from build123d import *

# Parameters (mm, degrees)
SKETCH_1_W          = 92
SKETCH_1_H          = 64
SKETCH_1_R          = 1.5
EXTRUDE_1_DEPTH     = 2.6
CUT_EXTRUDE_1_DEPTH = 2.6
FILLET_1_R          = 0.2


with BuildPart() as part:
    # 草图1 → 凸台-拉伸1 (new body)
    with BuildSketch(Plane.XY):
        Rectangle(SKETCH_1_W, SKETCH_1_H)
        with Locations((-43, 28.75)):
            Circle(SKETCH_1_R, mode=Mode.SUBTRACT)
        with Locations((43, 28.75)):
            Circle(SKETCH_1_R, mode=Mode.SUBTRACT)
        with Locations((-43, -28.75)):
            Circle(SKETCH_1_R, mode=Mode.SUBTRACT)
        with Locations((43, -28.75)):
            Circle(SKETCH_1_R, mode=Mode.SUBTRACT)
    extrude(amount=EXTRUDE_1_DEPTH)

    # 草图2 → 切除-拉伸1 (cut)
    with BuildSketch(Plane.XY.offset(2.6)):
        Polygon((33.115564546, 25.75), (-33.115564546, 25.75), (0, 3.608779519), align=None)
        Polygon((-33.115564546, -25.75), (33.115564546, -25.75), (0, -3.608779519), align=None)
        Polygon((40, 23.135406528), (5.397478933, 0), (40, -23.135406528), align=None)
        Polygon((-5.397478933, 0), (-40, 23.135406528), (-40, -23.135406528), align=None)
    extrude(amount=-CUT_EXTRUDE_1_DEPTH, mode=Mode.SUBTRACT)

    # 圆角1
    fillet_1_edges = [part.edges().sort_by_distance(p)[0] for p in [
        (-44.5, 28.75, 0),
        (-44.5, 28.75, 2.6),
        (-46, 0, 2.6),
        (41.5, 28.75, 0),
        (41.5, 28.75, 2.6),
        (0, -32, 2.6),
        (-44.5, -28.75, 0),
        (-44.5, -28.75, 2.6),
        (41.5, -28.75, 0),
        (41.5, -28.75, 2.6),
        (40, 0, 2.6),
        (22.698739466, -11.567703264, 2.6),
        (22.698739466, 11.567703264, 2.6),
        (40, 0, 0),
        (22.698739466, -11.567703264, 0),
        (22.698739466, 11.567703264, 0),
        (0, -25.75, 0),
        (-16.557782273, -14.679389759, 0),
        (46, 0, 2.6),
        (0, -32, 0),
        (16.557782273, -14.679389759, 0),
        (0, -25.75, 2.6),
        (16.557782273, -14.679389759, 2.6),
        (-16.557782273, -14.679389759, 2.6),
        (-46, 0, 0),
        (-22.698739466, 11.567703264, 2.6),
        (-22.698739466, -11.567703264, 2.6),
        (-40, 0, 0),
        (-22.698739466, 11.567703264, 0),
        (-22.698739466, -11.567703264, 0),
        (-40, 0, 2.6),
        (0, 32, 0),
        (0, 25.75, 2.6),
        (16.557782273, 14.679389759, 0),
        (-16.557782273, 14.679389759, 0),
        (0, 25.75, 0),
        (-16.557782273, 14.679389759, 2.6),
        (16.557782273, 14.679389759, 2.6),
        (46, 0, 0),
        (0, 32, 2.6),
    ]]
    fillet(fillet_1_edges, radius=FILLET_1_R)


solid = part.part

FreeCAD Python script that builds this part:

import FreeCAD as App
import Part
import Sketcher

V = App.Vector


def edges_at(feature, points):
    """Names of the edges that pass closest to the given points."""
    edges = feature.Shape.Edges
    near = lambda p: min(range(len(edges)), key=lambda i: edges[i].distToShape(Part.Vertex(*p))[0])
    return sorted({f"Edge{near(p) + 1}" for p in points})

doc = App.newDocument("Part")
params = doc.addObject("Spreadsheet::Sheet", "Params")
for row, (alias, value) in enumerate([
    ("sketch1_diameter", "3 mm"),
    ("sketch1_width", "92 mm"),
    ("sketch1_height", "64 mm"),
    ("pad1_length", "2.6 mm"),
    ("pocket1_length", "2.6 mm"),
    ("fillet_radius", "0.2 mm"),
], start=1):
    params.set(f"A{row}", alias)
    params.set(f"B{row}", "=" + value)
    params.setAlias(f"B{row}", alias)

body = doc.addObject("PartDesign::Body", "Body")

sketch1 = body.newObject("Sketcher::SketchObject", "Sketch")
sketch1.AttachmentSupport = (doc.getObject("XY_Plane"), [""])
sketch1.MapMode = "FlatFace"
sketch1.addGeometry(Part.LineSegment(V(-46, 32, 0), V(-46, -32, 0)), False)
sketch1.addGeometry(Part.LineSegment(V(-46, -32, 0), V(46, -32, 0)), False)
sketch1.addGeometry(Part.LineSegment(V(46, -32, 0), V(46, 32, 0)), False)
sketch1.addGeometry(Part.LineSegment(V(46, 32, 0), V(-46, 32, 0)), False)
sketch1.addGeometry(Part.Circle(V(-43, -28.8, 0), V(0, 0, 1), 1.5), False)
sketch1.addGeometry(Part.Circle(V(43, -28.8, 0), V(0, 0, 1), 1.5), False)
sketch1.addGeometry(Part.Circle(V(-43, 28.8, 0), V(0, 0, 1), 1.5), False)
sketch1.addGeometry(Part.Circle(V(43, 28.8, 0), V(0, 0, 1), 1.5), False)
sketch1.addConstraint(Sketcher.Constraint("Coincident", 0, 2, 1, 1))
sketch1.addConstraint(Sketcher.Constraint("Coincident", 1, 2, 2, 1))
sketch1.addConstraint(Sketcher.Constraint("Coincident", 2, 2, 3, 1))
sketch1.addConstraint(Sketcher.Constraint("Coincident", 3, 2, 0, 1))
sketch1.addConstraint(Sketcher.Constraint("Vertical", 0))
sketch1.addConstraint(Sketcher.Constraint("Horizontal", 1))
sketch1.addConstraint(Sketcher.Constraint("Vertical", 2))
sketch1.addConstraint(Sketcher.Constraint("Horizontal", 3))
sketch1.addConstraint(Sketcher.Constraint("Equal", 4, 5))
sketch1.addConstraint(Sketcher.Constraint("Equal", 5, 6))
sketch1.addConstraint(Sketcher.Constraint("Equal", 6, 7))
sketch1.addConstraint(Sketcher.Constraint("Symmetric", 5, 3, 6, 3, -1, 1))
sketch1.addConstraint(Sketcher.Constraint("Symmetric", 4, 3, 7, 3, -1, 1))
sketch1.addConstraint(Sketcher.Constraint("Symmetric", 0, 2, 2, 2, -1, 1))
sketch1.addConstraint(Sketcher.Constraint("Symmetric", 4, 3, 5, 3, -2))
sketch1.addConstraint(Sketcher.Constraint("Diameter", 4, 3.0))
sketch1.addConstraint(Sketcher.Constraint("DistanceX", 1, 1, 1, 2, 92.0))
sketch1.addConstraint(Sketcher.Constraint("DistanceY", 0, 2, 0, 1, 64.0))
sketch1.addConstraint(Sketcher.Constraint("DistanceX", 4, 3, -1, 1, 43.0))
sketch1.addConstraint(Sketcher.Constraint("DistanceY", 4, 3, 6, 3, 57.5))
sketch1.setExpression("Constraints[15]", "Params.sketch1_diameter")
sketch1.setExpression("Constraints[16]", "Params.sketch1_width")
sketch1.setExpression("Constraints[17]", "Params.sketch1_height")
pad1 = body.newObject("PartDesign::Pad", "Pad")
pad1.Profile = sketch1
pad1.setExpression("Length", "Params.pad1_length")

sketch2 = body.newObject("Sketcher::SketchObject", "Sketch001")
sketch2.AttachmentSupport = (doc.getObject("XY_Plane"), [""])
sketch2.MapMode = "FlatFace"
sketch2.AttachmentOffset = App.Placement(V(0, 0, 2.6), App.Rotation())
sketch2.addGeometry(Part.LineSegment(V(33, 26, 0), V(-33, 26, 0)), False)
sketch2.addGeometry(Part.LineSegment(V(-33, 26, 0), V(0, 4, 0)), False)
sketch2.addGeometry(Part.LineSegment(V(0, 4, 0), V(33, 26, 0)), False)
sketch2.addGeometry(Part.LineSegment(V(-33, -26, 0), V(33, -26, 0)), False)
sketch2.addGeometry(Part.LineSegment(V(33, -26, 0), V(0, -4, 0)), False)
sketch2.addGeometry(Part.LineSegment(V(0, -4, 0), V(-33, -26, 0)), False)
sketch2.addGeometry(Part.LineSegment(V(40, 23, 0), V(5, 0, 0)), False)
sketch2.addGeometry(Part.LineSegment(V(5, 0, 0), V(40, -23, 0)), False)
sketch2.addGeometry(Part.LineSegment(V(40, -23, 0), V(40, 23, 0)), False)
sketch2.addGeometry(Part.LineSegment(V(-5, 0, 0), V(-40, 23, 0)), False)
sketch2.addGeometry(Part.LineSegment(V(-40, 23, 0), V(-40, -23, 0)), False)
sketch2.addGeometry(Part.LineSegment(V(-40, -23, 0), V(-5, 0, 0)), False)
sketch2.addConstraint(Sketcher.Constraint("Coincident", 0, 2, 1, 1))
sketch2.addConstraint(Sketcher.Constraint("Coincident", 1, 2, 2, 1))
sketch2.addConstraint(Sketcher.Constraint("Coincident", 2, 2, 0, 1))
sketch2.addConstraint(Sketcher.Constraint("Coincident", 3, 2, 4, 1))
sketch2.addConstraint(Sketcher.Constraint("Coincident", 4, 2, 5, 1))
sketch2.addConstraint(Sketcher.Constraint("Coincident", 5, 2, 3, 1))
sketch2.addConstraint(Sketcher.Constraint("Coincident", 6, 2, 7, 1))
sketch2.addConstraint(Sketcher.Constraint("Coincident", 7, 2, 8, 1))
sketch2.addConstraint(Sketcher.Constraint("Coincident", 8, 2, 6, 1))
sketch2.addConstraint(Sketcher.Constraint("Coincident", 9, 2, 10, 1))
sketch2.addConstraint(Sketcher.Constraint("Coincident", 10, 2, 11, 1))
sketch2.addConstraint(Sketcher.Constraint("Coincident", 11, 2, 9, 1))
sketch2.addConstraint(Sketcher.Constraint("Horizontal", 0))
sketch2.addConstraint(Sketcher.Constraint("Horizontal", 3))
sketch2.addConstraint(Sketcher.Constraint("Vertical", 8))
sketch2.addConstraint(Sketcher.Constraint("Vertical", 10))
sketch2.addConstraint(Sketcher.Constraint("Symmetric", 0, 2, 3, 2, -1, 1))
sketch2.addConstraint(Sketcher.Constraint("Symmetric", 1, 2, 4, 2, -1, 1))
sketch2.addConstraint(Sketcher.Constraint("Symmetric", 7, 2, 9, 2, -1, 1))
sketch2.addConstraint(Sketcher.Constraint("Symmetric", 6, 2, 11, 2, -1, 1))
sketch2.addConstraint(Sketcher.Constraint("PointOnObject", 1, 2, -2))
sketch2.addConstraint(Sketcher.Constraint("PointOnObject", 6, 2, -1))
sketch2.addConstraint(Sketcher.Constraint("Parallel", 2, 5))
sketch2.addConstraint(Sketcher.Constraint("Parallel", 5, 6))
sketch2.addConstraint(Sketcher.Constraint("Parallel", 4, 7))
sketch2.addConstraint(Sketcher.Constraint("Parallel", 6, 11))
sketch2.addConstraint(Sketcher.Constraint("Horizontal", 8, 2, 9, 2))
sketch2.addConstraint(Sketcher.Constraint("DistanceX", -1, 1, 7, 2, 40.0))
sketch2.addConstraint(Sketcher.Constraint("DistanceY", 3, 2, 2, 2, 51.5))
sketch2.addConstraint(Sketcher.Constraint("DistanceX", 0, 2, 0, 1, 66.231129))
sketch2.addConstraint(Sketcher.Constraint("Distance", 1, 39.83559))
sketch2.addConstraint(Sketcher.Constraint("Distance", 6, 41.62429))
pocket1 = body.newObject("PartDesign::Pocket", "Pocket")
pocket1.Profile = sketch2
pocket1.setExpression("Length", "Params.pocket1_length")
doc.recompute()

fillet = body.newObject("PartDesign::Fillet", "Fillet")
fillet.Base = (pocket1, edges_at(pocket1, [
    (-44.5, 28.75, 0),
    (-44.5, 28.75, 2.6),
    (-46, 0, 2.6),
    (41.5, 28.75, 0),
    (41.5, 28.75, 2.6),
    (0, -32, 2.6),
    (-44.5, -28.75, 0),
    (-44.5, -28.75, 2.6),
    (41.5, -28.75, 0),
    (41.5, -28.75, 2.6),
    (40, 0, 2.6),
    (22.699, -11.568, 2.6),
    (22.699, 11.568, 2.6),
    (40, 0, 0),
    (22.699, -11.568, 0),
    (22.699, 11.568, 0),
    (0, -25.75, 0),
    (-16.558, -14.679, 0),
    (46, 0, 2.6),
    (0, -32, 0),
    (16.558, -14.679, 0),
    (0, -25.75, 2.6),
    (16.558, -14.679, 2.6),
    (-16.558, -14.679, 2.6),
    (-46, 0, 0),
    (-22.699, 11.568, 2.6),
    (-22.699, -11.568, 2.6),
    (-40, 0, 0),
    (-22.699, 11.568, 0),
    (-22.699, -11.568, 0),
    (-40, 0, 2.6),
    (0, 32, 0),
    (0, 25.75, 2.6),
    (16.558, 14.679, 0),
    (-16.558, 14.679, 0),
    (0, 25.75, 0),
    (-16.558, 14.679, 2.6),
    (16.558, 14.679, 2.6),
    (46, 0, 0),
    (0, 32, 2.6),
]))
fillet.setExpression("Radius", "Params.fillet_radius")

doc.recompute()
